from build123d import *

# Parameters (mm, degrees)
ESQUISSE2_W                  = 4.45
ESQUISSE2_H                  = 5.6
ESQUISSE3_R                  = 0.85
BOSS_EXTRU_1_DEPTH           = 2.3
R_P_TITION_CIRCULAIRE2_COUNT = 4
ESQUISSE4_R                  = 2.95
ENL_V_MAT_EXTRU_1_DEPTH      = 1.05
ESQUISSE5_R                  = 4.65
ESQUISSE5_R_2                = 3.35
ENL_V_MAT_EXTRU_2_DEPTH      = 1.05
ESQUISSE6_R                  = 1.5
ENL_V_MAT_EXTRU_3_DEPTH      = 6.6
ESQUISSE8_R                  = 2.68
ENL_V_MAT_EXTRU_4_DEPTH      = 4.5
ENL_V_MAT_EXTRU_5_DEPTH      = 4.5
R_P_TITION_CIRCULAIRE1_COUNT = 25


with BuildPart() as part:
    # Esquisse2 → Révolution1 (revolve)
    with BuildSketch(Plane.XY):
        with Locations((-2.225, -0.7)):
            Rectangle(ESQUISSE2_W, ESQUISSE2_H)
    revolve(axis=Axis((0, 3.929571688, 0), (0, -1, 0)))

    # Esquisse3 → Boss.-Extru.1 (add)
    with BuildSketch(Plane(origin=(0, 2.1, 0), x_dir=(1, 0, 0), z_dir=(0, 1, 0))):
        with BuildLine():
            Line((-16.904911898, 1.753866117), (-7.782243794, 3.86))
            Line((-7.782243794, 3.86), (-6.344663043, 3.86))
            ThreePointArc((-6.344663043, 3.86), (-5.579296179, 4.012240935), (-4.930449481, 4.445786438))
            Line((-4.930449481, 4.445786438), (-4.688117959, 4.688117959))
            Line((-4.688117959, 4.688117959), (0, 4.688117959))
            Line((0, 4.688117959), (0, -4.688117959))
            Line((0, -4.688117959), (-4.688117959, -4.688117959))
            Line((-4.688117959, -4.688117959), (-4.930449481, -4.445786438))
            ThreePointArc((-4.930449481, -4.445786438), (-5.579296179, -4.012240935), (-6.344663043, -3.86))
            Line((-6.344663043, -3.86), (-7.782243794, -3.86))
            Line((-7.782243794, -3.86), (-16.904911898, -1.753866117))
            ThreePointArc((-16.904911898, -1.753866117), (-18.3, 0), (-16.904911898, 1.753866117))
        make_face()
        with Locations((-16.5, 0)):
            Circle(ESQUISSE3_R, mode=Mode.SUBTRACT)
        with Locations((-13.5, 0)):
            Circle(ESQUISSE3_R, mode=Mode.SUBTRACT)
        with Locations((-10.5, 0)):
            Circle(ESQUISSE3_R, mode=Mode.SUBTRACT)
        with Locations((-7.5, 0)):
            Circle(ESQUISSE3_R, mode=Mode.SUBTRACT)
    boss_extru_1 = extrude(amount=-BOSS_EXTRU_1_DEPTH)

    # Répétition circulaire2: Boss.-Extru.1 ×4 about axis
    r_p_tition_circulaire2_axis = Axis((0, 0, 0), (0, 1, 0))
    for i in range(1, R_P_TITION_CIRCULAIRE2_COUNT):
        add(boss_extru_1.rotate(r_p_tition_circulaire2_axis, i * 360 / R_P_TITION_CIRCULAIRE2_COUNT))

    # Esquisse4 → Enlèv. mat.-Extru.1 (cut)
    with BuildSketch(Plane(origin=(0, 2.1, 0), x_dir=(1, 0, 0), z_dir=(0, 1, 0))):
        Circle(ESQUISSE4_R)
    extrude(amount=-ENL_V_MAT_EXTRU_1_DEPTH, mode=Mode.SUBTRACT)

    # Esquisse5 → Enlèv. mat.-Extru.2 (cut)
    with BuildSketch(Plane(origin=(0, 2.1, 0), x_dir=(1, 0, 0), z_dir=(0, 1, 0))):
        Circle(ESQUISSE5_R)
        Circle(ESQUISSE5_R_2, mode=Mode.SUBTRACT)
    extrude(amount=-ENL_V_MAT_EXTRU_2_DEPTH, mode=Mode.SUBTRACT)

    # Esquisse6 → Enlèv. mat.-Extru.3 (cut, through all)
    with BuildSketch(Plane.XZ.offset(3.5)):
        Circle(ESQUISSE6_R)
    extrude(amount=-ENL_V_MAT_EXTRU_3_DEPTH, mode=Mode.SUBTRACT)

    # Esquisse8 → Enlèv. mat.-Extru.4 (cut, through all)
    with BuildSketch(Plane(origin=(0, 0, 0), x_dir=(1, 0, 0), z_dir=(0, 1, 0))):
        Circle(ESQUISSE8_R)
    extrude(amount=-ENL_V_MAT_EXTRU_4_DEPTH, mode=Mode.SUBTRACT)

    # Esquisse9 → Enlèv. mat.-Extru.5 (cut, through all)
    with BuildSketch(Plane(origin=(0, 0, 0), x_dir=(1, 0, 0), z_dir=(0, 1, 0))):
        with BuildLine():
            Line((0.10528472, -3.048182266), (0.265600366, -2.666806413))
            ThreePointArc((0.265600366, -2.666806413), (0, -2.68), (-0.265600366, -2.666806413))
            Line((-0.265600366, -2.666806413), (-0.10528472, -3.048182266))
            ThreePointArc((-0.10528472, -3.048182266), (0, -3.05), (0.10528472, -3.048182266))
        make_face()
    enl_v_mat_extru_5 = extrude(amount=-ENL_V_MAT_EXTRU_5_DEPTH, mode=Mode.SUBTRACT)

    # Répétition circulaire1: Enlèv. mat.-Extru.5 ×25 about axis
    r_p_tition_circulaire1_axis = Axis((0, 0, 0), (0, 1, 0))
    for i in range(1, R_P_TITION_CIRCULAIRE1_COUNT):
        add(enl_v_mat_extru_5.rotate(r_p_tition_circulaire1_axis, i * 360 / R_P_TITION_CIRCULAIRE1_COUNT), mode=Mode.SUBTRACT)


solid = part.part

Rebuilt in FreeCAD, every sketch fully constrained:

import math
import FreeCAD as App
import Part
import Sketcher
Q = App.Units.Quantity


def add_polygon(sketch, points):
    """Adds a closed chain of lines whose ends are joined by coincident constraints."""
    first, n = sketch.GeometryCount, len(points)
    for a, b in zip(points, points[1:] + points[:1]):
        sketch.addGeometry(Part.LineSegment(App.Vector(*a, 0), App.Vector(*b, 0)), False)
    for i in range(n):
        sketch.addConstraint(Sketcher.Constraint("Coincident", first + i, 2, first + (i + 1) % n, 1))

doc = App.newDocument("Part")
params = doc.addObject("Spreadsheet::Sheet", "Params")
for row, (alias, value) in enumerate([
    ("sketch1_height", "5.6 mm"),
    ("sketch1_width", "4.45 mm"),
    ("revolution_angle", "360 deg"),
    ("sketch2_radius", "2 mm"),
    ("sketch2_diameter", "1.7 mm"),
    ("sketch2_radius2", "1.8 mm"),
    ("pad1_length", "2.3 mm"),
    ("sketch3_diameter", "5.9 mm"),
    ("pocket1_length", "1.05 mm"),
    ("sketch4_diameter", "9.3 mm"),
    ("sketch4_diameter2", "6.7 mm"),
    ("pocket2_length", "1.05 mm"),
    ("sketch5_diameter", "3 mm"),
    ("sketch6_diameter", "5.36 mm"),
    ("sketch7_radius", "2.68 mm"),
    ("sketch7_radius2", "3.05 mm"),
], start=1):
    params.set(f"A{row}", alias)
    params.set(f"B{row}", "=" + value)
    params.setAlias(f"B{row}", alias)

body = doc.addObject("PartDesign::Body", "Body")

# Sketch on XY plane
sketch1 = body.newObject("Sketcher::SketchObject", "Sketch")
sketch1.AttachmentSupport = (doc.getObject("XY_Plane"), [""])
sketch1.MapMode = "FlatFace"
add_polygon(sketch1, [(-4.5, 2.1), (-4.5, -3.5), (0, -3.5), (0, 2.1)])  # lines 0-3
sketch1.addConstraint([
    Sketcher.Constraint("Vertical", 0),
    Sketcher.Constraint("Horizontal", 1),
    Sketcher.Constraint("Vertical", 2),
    Sketcher.Constraint("Horizontal", 3),
    Sketcher.Constraint("PointOnObject", 1, 2, -2),
    Sketcher.Constraint("DistanceY", 0, 2, 0, 1, Q("5.6 mm")),
    Sketcher.Constraint("DistanceX", 1, 1, 1, 2, Q("4.45 mm")),
    Sketcher.Constraint("DistanceY", 0, 2, -1, 1, Q("3.5 mm")),
])
sketch1.setExpression("Constraints[9]", "Params.sketch1_height")
sketch1.setExpression("Constraints[10]", "Params.sketch1_width")
revolution = body.newObject("PartDesign::Revolution", "Revolution")
revolution.Profile = sketch1
revolution.ReferenceAxis = (sketch1, ["V_Axis"])
revolution.setExpression("Angle", "Params.revolution_angle")

# Sketch on XZ plane
sketch2 = body.newObject("Sketcher::SketchObject", "Sketch001")
sketch2.AttachmentSupport = (doc.getObject("XZ_Plane"), [""])
sketch2.MapMode = "FlatFace"
sketch2.AttachmentOffset = App.Placement(App.Vector(0, 0, -2.1), App.Rotation())
sketch2.addGeometry([
    Part.LineSegment(App.Vector(-7.78, -3.86, 0), App.Vector(-16.9, -1.75, 0)),  # 0
    Part.ArcOfCircle(Part.Circle(App.Vector(-16.5, 0, 0), App.Vector(0, 0, 1), 1.8), math.radians(103), math.radians(257)),  # 1
    Part.LineSegment(App.Vector(-16.9, 1.75, 0), App.Vector(-7.78, 3.86, 0)),  # 2
    Part.LineSegment(App.Vector(-7.78, 3.86, 0), App.Vector(-6.34, 3.86, 0)),  # 3
    Part.ArcOfCircle(Part.Circle(App.Vector(-6.34, 5.86, 0), App.Vector(0, 0, 1), 2), math.radians(-90), math.radians(-45)),  # 4
    Part.LineSegment(App.Vector(-4.93, 4.45, 0), App.Vector(-4.69, 4.69, 0)),  # 5
    Part.LineSegment(App.Vector(-4.69, 4.69, 0), App.Vector(0, 4.69, 0)),  # 6
    Part.LineSegment(App.Vector(0, 4.69, 0), App.Vector(0, -4.69, 0)),  # 7
    Part.LineSegment(App.Vector(0, -4.69, 0), App.Vector(-4.69, -4.69, 0)),  # 8
    Part.LineSegment(App.Vector(-4.69, -4.69, 0), App.Vector(-4.93, -4.45, 0)),  # 9
    Part.ArcOfCircle(Part.Circle(App.Vector(-6.34, -5.86, 0), App.Vector(0, 0, 1), 2), math.radians(45), math.radians(90)),  # 10
    Part.LineSegment(App.Vector(-6.34, -3.86, 0), App.Vector(-7.78, -3.86, 0)),  # 11
    Part.Circle(App.Vector(-7.5, 0, 0), App.Vector(0, 0, 1), 0.85),  # 12
    Part.Circle(App.Vector(-10.5, 0, 0), App.Vector(0, 0, 1), 0.85),  # 13
    Part.Circle(App.Vector(-13.5, 0, 0), App.Vector(0, 0, 1), 0.85),  # 14
    Part.Circle(App.Vector(-16.5, 0, 0), App.Vector(0, 0, 1), 0.85),  # 15
], False)
sketch2.addConstraint([
    Sketcher.Constraint("Tangent", 0, 2, 1, 2),
    Sketcher.Constraint("Tangent", 1, 1, 2, 1),
    Sketcher.Constraint("Coincident", 2, 2, 3, 1),
    Sketcher.Constraint("Tangent", 3, 2, 4, 1),
    Sketcher.Constraint("Tangent", 4, 2, 5, 1),
    Sketcher.Constraint("Coincident", 5, 2, 6, 1),
    Sketcher.Constraint("Coincident", 6, 2, 7, 1),
    Sketcher.Constraint("Coincident", 7, 2, 8, 1),
    Sketcher.Constraint("Coincident", 8, 2, 9, 1),
    Sketcher.Constraint("Tangent", 9, 2, 10, 1),
    Sketcher.Constraint("Tangent", 10, 2, 11, 1),
    Sketcher.Constraint("Coincident", 11, 2, 0, 1),
    Sketcher.Constraint("Horizontal", 3),
    Sketcher.Constraint("Horizontal", 6),
    Sketcher.Constraint("Vertical", 7),
    Sketcher.Constraint("Horizontal", 8),
    Sketcher.Constraint("Horizontal", 11),
    Sketcher.Constraint("Coincident", 15, 3, 1, 3),
    Sketcher.Constraint("Equal", 4, 10),
    Sketcher.Constraint("Equal", 12, 13),
    Sketcher.Constraint("Equal", 13, 14),
    Sketcher.Constraint("Equal", 14, 15),
    Sketcher.Constraint("Symmetric", 6, 2, 7, 2, -1, 1),
    Sketcher.Constraint("Symmetric", 4, 3, 10, 3, -1),
    Sketcher.Constraint("Symmetric", 0, 2, 1, 1, -1),
    Sketcher.Constraint("PointOnObject", 12, 3, -1),
    Sketcher.Constraint("PointOnObject", 13, 3, -1),
    Sketcher.Constraint("PointOnObject", 14, 3, -1),
    Sketcher.Constraint("Perpendicular", 5, 9),
    Sketcher.Constraint("Vertical", 5, 2, 8, 2),
    Sketcher.Constraint("Radius", 4, Q("2 mm")),
    Sketcher.Constraint("Diameter", 12, Q("1.7 mm")),
    Sketcher.Constraint("Radius", 1, Q("1.8 mm")),
    Sketcher.Constraint("Angle", 0, Q("167 deg")),
    Sketcher.Constraint("DistanceX", 1, 3, 12, 3, Q("9 mm")),
    Sketcher.Constraint("DistanceX", 13, 3, 12, 3, Q("3 mm")),
    Sketcher.Constraint("DistanceX", 1, 3, 14, 3, Q("3 mm")),
    Sketcher.Constraint("DistanceX", 1, 3, -1, 1, Q("16.5 mm")),
    Sketcher.Constraint("DistanceY", -1, 1, 4, 3, Q("5.86 mm")),
    Sketcher.Constraint("DistanceX", 3, 1, 3, 2, Q("1.437581 mm")),
    Sketcher.Constraint("Distance", 5, Q("0.342709 mm")),
])
sketch2.setExpression("Constraints[30]", "Params.sketch2_radius")
sketch2.setExpression("Constraints[31]", "Params.sketch2_diameter")
sketch2.setExpression("Constraints[32]", "Params.sketch2_radius2")
pad1 = body.newObject("PartDesign::Pad", "Pad")
pad1.Profile = sketch2
pad1.setExpression("Length", "Params.pad1_length")
doc.recompute()

polarpattern = body.newObject("PartDesign::PolarPattern", "PolarPattern")
polarpattern.Originals = [pad1]
polarpattern.Axis = (doc.getObject("Y_Axis"), [""])
polarpattern.Angle = 360
polarpattern.Occurrences = 4
body.Tip = polarpattern

# Sketch on XZ plane
sketch3 = body.newObject("Sketcher::SketchObject", "Sketch002")
sketch3.AttachmentSupport = (doc.getObject("XZ_Plane"), [""])
sketch3.MapMode = "FlatFace"
sketch3.AttachmentOffset = App.Placement(App.Vector(0, 0, -2.1), App.Rotation())
sketch3.addGeometry(Part.Circle(App.Vector(0, 0, 0), App.Vector(0, 0, 1), 3), False)
sketch3.addConstraint([
    Sketcher.Constraint("Coincident", 0, 3, -1, 1),
    Sketcher.Constraint("Diameter", 0, Q("5.9 mm")),
])
sketch3.setExpression("Constraints[1]", "Params.sketch3_diameter")
pocket1 = body.newObject("PartDesign::Pocket", "Pocket")
pocket1.Profile = sketch3
pocket1.setExpression("Length", "Params.pocket1_length")
pocket1.Reversed = True

# Sketch on XZ plane
sketch4 = body.newObject("Sketcher::SketchObject", "Sketch003")
sketch4.AttachmentSupport = (doc.getObject("XZ_Plane"), [""])
sketch4.MapMode = "FlatFace"
sketch4.AttachmentOffset = App.Placement(App.Vector(0, 0, -2.1), App.Rotation())
sketch4.addGeometry([
    Part.Circle(App.Vector(0, 0, 0), App.Vector(0, 0, 1), 4.7),
    Part.Circle(App.Vector(0, 0, 0), App.Vector(0, 0, 1), 3.4),
], False)
sketch4.addConstraint([
    Sketcher.Constraint("Coincident", 0, 3, -1, 1),
    Sketcher.Constraint("Coincident", 1, 3, -1, 1),
    Sketcher.Constraint("Diameter", 0, Q("9.3 mm")),
    Sketcher.Constraint("Diameter", 1, Q("6.7 mm")),
])
sketch4.setExpression("Constraints[2]", "Params.sketch4_diameter")
sketch4.setExpression("Constraints[3]", "Params.sketch4_diameter2")
pocket2 = body.newObject("PartDesign::Pocket", "Pocket001")
pocket2.Profile = sketch4
pocket2.setExpression("Length", "Params.pocket2_length")
pocket2.Reversed = True

# Sketch on XZ plane
sketch5 = body.newObject("Sketcher::SketchObject", "Sketch004")
sketch5.AttachmentSupport = (doc.getObject("XZ_Plane"), [""])
sketch5.MapMode = "FlatFace"
sketch5.AttachmentOffset = App.Placement(App.Vector(0, 0, 3.5), App.Rotation())
sketch5.addGeometry(Part.Circle(App.Vector(0, 0, 0), App.Vector(0, 0, 1), 1.5), False)
sketch5.addConstraint([
    Sketcher.Constraint("Coincident", 0, 3, -1, 1),
    Sketcher.Constraint("Diameter", 0, Q("3 mm")),
])
sketch5.setExpression("Constraints[1]", "Params.sketch5_diameter")
pocket3 = body.newObject("PartDesign::Pocket", "Pocket002")
pocket3.Profile = sketch5
pocket3.Type = "ThroughAll"

# Sketch on XZ plane
sketch6 = body.newObject("Sketcher::SketchObject", "Sketch005")
sketch6.AttachmentSupport = (doc.getObject("XZ_Plane"), [""])
sketch6.MapMode = "FlatFace"
sketch6.addGeometry(Part.Circle(App.Vector(0, 0, 0), App.Vector(0, 0, 1), 2.7), False)
sketch6.addConstraint([
    Sketcher.Constraint("Coincident", 0, 3, -1, 1),
    Sketcher.Constraint("Diameter", 0, Q("5.36 mm")),
])
sketch6.setExpression("Constraints[1]", "Params.sketch6_diameter")
pocket4 = body.newObject("PartDesign::Pocket", "Pocket003")
pocket4.Profile = sketch6
pocket4.Type = "ThroughAll"
pocket4.Reversed = True

# Sketch on XZ plane
sketch7 = body.newObject("Sketcher::SketchObject", "Sketch006")
sketch7.AttachmentSupport = (doc.getObject("XZ_Plane"), [""])
sketch7.MapMode = "FlatFace"
sketch7.addGeometry([
    Part.LineSegment(App.Vector(0.11, 3.05, 0), App.Vector(0.27, 2.67, 0)),
    Part.ArcOfCircle(Part.Circle(App.Vector(0, 0, 0), App.Vector(0, 0, 1), 2.68), math.radians(84.31), math.radians(95.69)),
    Part.LineSegment(App.Vector(-0.27, 2.67, 0), App.Vector(-0.11, 3.05, 0)),
    Part.ArcOfCircle(Part.Circle(App.Vector(0, 0, 0), App.Vector(0, 0, 1), 3.05), math.radians(88.02), math.radians(91.98)),
], False)
sketch7.addConstraint([
    Sketcher.Constraint("Coincident", 0, 2, 1, 1),
    Sketcher.Constraint("Coincident", 1, 2, 2, 1),
    Sketcher.Constraint("Coincident", 2, 2, 3, 2),
    Sketcher.Constraint("Coincident", 3, 1, 0, 1),
    Sketcher.Constraint("Coincident", 1, 3, -1, 1),
    Sketcher.Constraint("Coincident", 3, 3, -1, 1),
    Sketcher.Constraint("Horizontal", 0, 2, 1, 2),
    Sketcher.Constraint("Horizontal", 2, 2, 3, 1),
    Sketcher.Constraint("Radius", 1, Q("2.68 mm")),
    Sketcher.Constraint("Radius", 3, Q("3.05 mm")),
    Sketcher.Constraint("Angle", 0, Q("-67.2 deg")),
    Sketcher.Constraint("Distance", 0, Q("0.413701 mm")),
])
sketch7.setExpression("Constraints[8]", "Params.sketch7_radius")
sketch7.setExpression("Constraints[9]", "Params.sketch7_radius2")
pocket5 = body.newObject("PartDesign::Pocket", "Pocket004")
pocket5.Profile = sketch7
pocket5.Type = "ThroughAll"
pocket5.Reversed = True
doc.recompute()

polarpattern2 = body.newObject("PartDesign::PolarPattern", "PolarPattern001")
polarpattern2.Originals = [pocket5]
polarpattern2.Axis = (doc.getObject("Y_Axis"), [""])
polarpattern2.Angle = 360
polarpattern2.Occurrences = 25
body.Tip = polarpattern2

doc.recompute()
